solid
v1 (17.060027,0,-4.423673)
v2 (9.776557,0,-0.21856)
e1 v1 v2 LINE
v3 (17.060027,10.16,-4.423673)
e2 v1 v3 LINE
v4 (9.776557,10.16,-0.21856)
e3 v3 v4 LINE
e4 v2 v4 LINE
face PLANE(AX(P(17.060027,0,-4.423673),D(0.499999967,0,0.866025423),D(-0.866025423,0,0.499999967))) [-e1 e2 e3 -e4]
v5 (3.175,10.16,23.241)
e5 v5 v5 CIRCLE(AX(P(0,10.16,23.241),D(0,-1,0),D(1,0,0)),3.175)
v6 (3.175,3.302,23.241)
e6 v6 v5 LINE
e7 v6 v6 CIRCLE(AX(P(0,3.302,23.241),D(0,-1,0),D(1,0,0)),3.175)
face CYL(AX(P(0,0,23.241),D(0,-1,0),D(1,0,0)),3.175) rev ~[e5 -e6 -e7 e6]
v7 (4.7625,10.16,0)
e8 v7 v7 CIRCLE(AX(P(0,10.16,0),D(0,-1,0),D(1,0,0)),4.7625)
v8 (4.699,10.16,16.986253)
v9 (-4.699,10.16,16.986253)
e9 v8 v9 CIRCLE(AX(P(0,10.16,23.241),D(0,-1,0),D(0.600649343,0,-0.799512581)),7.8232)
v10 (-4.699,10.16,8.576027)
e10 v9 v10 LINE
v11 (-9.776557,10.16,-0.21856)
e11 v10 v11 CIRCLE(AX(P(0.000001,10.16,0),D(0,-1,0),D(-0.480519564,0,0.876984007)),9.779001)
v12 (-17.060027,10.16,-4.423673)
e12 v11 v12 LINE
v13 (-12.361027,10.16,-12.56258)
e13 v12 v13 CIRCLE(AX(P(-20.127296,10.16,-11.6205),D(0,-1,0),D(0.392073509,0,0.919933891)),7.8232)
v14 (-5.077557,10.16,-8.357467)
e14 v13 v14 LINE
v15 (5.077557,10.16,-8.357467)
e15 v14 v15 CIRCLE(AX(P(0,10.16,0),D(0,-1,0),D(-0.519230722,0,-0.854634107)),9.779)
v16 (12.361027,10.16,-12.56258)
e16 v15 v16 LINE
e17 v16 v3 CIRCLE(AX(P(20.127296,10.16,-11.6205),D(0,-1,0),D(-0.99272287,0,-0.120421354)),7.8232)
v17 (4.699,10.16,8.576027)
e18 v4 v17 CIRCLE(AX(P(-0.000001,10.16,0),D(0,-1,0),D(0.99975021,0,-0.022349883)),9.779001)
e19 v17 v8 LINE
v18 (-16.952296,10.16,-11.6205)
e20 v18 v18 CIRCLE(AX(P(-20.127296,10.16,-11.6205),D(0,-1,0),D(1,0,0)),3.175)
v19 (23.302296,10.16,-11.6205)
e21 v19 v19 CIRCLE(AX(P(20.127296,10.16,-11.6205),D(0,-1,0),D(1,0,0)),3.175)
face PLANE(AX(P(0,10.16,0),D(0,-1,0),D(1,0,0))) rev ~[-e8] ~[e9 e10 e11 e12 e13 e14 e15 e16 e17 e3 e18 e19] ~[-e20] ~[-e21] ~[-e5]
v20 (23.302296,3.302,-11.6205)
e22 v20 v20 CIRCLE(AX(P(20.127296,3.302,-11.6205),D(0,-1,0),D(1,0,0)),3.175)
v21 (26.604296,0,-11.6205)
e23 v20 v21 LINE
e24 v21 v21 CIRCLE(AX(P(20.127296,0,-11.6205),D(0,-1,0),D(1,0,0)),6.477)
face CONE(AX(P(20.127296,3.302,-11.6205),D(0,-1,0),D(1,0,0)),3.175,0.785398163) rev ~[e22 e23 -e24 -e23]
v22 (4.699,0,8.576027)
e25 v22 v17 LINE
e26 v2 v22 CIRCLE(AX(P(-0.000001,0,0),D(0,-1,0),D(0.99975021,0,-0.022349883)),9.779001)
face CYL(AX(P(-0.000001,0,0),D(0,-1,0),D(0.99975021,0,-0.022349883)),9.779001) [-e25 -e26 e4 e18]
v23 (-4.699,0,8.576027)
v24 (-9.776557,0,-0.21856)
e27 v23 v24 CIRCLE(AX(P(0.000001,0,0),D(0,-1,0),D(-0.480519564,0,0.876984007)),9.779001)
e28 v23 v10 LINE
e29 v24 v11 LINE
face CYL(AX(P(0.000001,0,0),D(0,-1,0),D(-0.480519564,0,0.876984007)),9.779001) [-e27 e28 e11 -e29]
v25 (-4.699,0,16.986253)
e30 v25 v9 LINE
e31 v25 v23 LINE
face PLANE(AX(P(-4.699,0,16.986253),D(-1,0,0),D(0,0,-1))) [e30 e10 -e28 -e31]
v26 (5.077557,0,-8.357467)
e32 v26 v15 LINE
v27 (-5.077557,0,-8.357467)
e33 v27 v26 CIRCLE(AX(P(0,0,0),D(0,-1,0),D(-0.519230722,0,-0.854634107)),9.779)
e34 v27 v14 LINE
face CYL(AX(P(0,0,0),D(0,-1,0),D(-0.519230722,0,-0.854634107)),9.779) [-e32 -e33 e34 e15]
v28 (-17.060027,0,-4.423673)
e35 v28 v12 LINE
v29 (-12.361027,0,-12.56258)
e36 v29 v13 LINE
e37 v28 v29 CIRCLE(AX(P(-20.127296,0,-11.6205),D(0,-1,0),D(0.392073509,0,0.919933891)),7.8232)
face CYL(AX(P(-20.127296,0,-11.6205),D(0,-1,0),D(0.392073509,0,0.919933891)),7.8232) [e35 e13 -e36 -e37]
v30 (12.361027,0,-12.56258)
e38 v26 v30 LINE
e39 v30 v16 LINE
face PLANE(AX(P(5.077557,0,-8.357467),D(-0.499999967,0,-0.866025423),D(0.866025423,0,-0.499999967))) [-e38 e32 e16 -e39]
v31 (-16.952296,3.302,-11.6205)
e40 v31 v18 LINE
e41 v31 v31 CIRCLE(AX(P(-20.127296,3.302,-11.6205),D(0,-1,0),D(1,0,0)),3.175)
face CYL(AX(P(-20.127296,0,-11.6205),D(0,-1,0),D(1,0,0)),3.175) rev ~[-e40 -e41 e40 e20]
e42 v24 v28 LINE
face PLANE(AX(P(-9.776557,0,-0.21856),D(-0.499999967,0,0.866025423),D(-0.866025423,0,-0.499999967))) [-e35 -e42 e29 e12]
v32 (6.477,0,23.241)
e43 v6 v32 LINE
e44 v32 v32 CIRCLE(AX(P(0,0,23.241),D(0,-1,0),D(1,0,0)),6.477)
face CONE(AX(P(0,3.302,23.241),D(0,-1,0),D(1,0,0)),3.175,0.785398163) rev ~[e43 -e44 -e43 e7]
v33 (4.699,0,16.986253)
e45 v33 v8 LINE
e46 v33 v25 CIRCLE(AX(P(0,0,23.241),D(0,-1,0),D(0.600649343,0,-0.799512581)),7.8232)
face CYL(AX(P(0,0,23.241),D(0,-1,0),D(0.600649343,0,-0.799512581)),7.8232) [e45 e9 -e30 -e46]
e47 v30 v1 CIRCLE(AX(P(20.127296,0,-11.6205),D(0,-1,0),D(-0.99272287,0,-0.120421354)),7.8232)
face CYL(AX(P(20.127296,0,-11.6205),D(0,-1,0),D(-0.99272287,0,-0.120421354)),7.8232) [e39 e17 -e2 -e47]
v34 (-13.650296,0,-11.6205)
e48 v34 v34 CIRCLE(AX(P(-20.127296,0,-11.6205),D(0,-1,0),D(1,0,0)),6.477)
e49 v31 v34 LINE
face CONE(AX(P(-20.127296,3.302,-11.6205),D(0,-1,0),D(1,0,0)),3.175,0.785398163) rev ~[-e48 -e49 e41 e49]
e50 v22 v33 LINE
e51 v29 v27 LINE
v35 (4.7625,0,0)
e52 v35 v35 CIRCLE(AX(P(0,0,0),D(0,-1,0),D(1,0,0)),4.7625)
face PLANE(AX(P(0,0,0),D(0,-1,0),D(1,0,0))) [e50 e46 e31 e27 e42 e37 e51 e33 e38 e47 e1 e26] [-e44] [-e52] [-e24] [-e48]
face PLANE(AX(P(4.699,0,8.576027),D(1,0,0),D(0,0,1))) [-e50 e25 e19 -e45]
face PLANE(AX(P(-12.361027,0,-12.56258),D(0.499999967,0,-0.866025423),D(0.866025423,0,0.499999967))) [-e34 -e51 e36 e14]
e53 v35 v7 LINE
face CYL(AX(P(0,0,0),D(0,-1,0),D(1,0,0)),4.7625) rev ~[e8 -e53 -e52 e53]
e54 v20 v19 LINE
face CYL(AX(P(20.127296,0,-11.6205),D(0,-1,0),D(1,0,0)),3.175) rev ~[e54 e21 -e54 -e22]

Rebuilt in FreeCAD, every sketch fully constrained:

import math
import FreeCAD as App
import Part
import Sketcher

V = App.Vector
Q = App.Units.Quantity


def edges_at(feature, points):
    """Names of the edges that pass closest to the given points."""
    edges = feature.Shape.Edges
    near = lambda p: min(range(len(edges)), key=lambda i: edges[i].distToShape(Part.Vertex(*p))[0])
    return sorted({f"Edge{near(p) + 1}" for p in points})

doc = App.newDocument("Part")
body = doc.addObject("PartDesign::Body", "Body")

sketch1 = body.newObject("Sketcher::SketchObject", "Sketch")
sketch1.AttachmentSupport = (doc.getObject("XZ_Plane"), [""])
sketch1.MapMode = "FlatFace"
sketch1.addGeometry([
    Part.LineSegment(V(4.7, 8.6, 0), V(4.7, 17, 0)),
    Part.ArcOfCircle(Part.Circle(V(0, 23.2, 0), V(0, 0, 1), 7.8), math.radians(-53), math.radians(233)),
    Part.LineSegment(V(-4.7, 17, 0), V(-4.7, 8.6, 0)),
    Part.ArcOfCircle(Part.Circle(V(0, 0, 0), V(0, 0, 1), 9.8), math.radians(119), math.radians(181)),
    Part.LineSegment(V(-9.8, -0.2, 0), V(-17.1, -4.4, 0)),
    Part.ArcOfCircle(Part.Circle(V(-20.1, -11.6, 0), V(0, 0, 1), 7.8), math.radians(67), math.radians(353)),
    Part.LineSegment(V(-12.4, -12.6, 0), V(-5.1, -8.4, 0)),
    Part.ArcOfCircle(Part.Circle(V(0, 0, 0), V(0, 0, 1), 9.8), math.radians(-121), math.radians(-59)),
    Part.LineSegment(V(5.1, -8.4, 0), V(12.4, -12.6, 0)),
    Part.ArcOfCircle(Part.Circle(V(20.1, -11.6, 0), V(0, 0, 1), 7.8), math.radians(-173), math.radians(113)),
    Part.LineSegment(V(17.1, -4.4, 0), V(9.8, -0.2, 0)),
    Part.ArcOfCircle(Part.Circle(V(0, 0, 0), V(0, 0, 1), 9.8), math.radians(-1), math.radians(61)),
    Part.Circle(V(-20.1, -11.6, 0), V(0, 0, 1), 3.2),
    Part.Circle(V(0, 0, 0), V(0, 0, 1), 4.8),
    Part.Circle(V(20.1, -11.6, 0), V(0, 0, 1), 3.2),
    Part.Circle(V(0, 23.2, 0), V(0, 0, 1), 3.2),
], False)
sketch1.addConstraint([
    Sketcher.Constraint("Coincident", 0, 2, 1, 1),
    Sketcher.Constraint("Coincident", 1, 2, 2, 1),
    Sketcher.Constraint("Coincident", 2, 2, 3, 1),
    Sketcher.Constraint("Coincident", 3, 2, 4, 1),
    Sketcher.Constraint("Coincident", 4, 2, 5, 1),
    Sketcher.Constraint("Coincident", 5, 2, 6, 1),
    Sketcher.Constraint("Coincident", 6, 2, 7, 1),
    Sketcher.Constraint("Coincident", 7, 2, 8, 1),
    Sketcher.Constraint("Coincident", 8, 2, 9, 1),
    Sketcher.Constraint("Coincident", 9, 2, 10, 1),
    Sketcher.Constraint("Coincident", 10, 2, 11, 1),
    Sketcher.Constraint("Coincident", 11, 2, 0, 1),
    Sketcher.Constraint("Vertical", 0),
    Sketcher.Constraint("Vertical", 2),
    Sketcher.Constraint("Coincident", 3, 3, -1, 1),
    Sketcher.Constraint("Coincident", 7, 3, -1, 1),
    Sketcher.Constraint("Coincident", 11, 3, -1, 1),
    Sketcher.Constraint("Coincident", 13, 3, -1, 1),
    Sketcher.Constraint("Coincident", 12, 3, 5, 3),
    Sketcher.Constraint("Coincident", 14, 3, 9, 3),
    Sketcher.Constraint("Coincident", 15, 3, 1, 3),
    Sketcher.Constraint("Equal", 1, 5),
    Sketcher.Constraint("Equal", 3, 7),
    Sketcher.Constraint("Equal", 5, 9),
    Sketcher.Constraint("Equal", 7, 11),
    Sketcher.Constraint("Equal", 12, 14),
    Sketcher.Constraint("Equal", 14, 15),
    Sketcher.Constraint("Symmetric", 5, 3, 9, 3, -2),
    Sketcher.Constraint("Symmetric", 0, 2, 1, 2, -2),
    Sketcher.Constraint("Parallel", 4, 6),
    Sketcher.Constraint("Parallel", 8, 10),
    Sketcher.Constraint("Horizontal", 6, 2, 7, 2),
    Sketcher.Constraint("Horizontal", 5, 2, 8, 2),
    Sketcher.Constraint("Horizontal", 4, 2, 9, 2),
    Sketcher.Constraint("Equal", 4, 6),
    Sketcher.Constraint("Diameter", 12, Q("0.25 in")),
    Sketcher.Constraint("Diameter", 13, Q("0.375 in")),
    Sketcher.Constraint("Angle", 4, Q("-150.000002 deg")),
    Sketcher.Constraint("Radius", 1, Q("0.308 in")),
    Sketcher.Constraint("Radius", 3, Q("0.385 in")),
    Sketcher.Constraint("DistanceX", 1, 2, 0, 2, Q("0.37 in")),
    Sketcher.Constraint("DistanceY", -1, 1, 1, 3, Q("0.915 in")),
    Sketcher.Constraint("DistanceX", 4, 2, 5, 2, Q("0.185 in")),
    Sketcher.Constraint("DistanceY", 5, 3, -1, 1, Q("0.4575 in")),
    Sketcher.Constraint("DistanceY", 3, 2, -1, 1, Q("0.21856 mm")),
])
pad1 = body.newObject("PartDesign::Pad", "Pad")
pad1.Profile = sketch1
pad1.Length = Q("0.4 in")
pad1.Reversed = True
doc.recompute()

chamfer = body.newObject("PartDesign::Chamfer", "Chamfer")
chamfer.Base = (pad1, edges_at(pad1, [(-3.175, 0, 23.241), (-23.302, 0, -11.62), (16.952, 0, -11.62)]))
chamfer.Size = Q("0.13 in")

doc.recompute()
